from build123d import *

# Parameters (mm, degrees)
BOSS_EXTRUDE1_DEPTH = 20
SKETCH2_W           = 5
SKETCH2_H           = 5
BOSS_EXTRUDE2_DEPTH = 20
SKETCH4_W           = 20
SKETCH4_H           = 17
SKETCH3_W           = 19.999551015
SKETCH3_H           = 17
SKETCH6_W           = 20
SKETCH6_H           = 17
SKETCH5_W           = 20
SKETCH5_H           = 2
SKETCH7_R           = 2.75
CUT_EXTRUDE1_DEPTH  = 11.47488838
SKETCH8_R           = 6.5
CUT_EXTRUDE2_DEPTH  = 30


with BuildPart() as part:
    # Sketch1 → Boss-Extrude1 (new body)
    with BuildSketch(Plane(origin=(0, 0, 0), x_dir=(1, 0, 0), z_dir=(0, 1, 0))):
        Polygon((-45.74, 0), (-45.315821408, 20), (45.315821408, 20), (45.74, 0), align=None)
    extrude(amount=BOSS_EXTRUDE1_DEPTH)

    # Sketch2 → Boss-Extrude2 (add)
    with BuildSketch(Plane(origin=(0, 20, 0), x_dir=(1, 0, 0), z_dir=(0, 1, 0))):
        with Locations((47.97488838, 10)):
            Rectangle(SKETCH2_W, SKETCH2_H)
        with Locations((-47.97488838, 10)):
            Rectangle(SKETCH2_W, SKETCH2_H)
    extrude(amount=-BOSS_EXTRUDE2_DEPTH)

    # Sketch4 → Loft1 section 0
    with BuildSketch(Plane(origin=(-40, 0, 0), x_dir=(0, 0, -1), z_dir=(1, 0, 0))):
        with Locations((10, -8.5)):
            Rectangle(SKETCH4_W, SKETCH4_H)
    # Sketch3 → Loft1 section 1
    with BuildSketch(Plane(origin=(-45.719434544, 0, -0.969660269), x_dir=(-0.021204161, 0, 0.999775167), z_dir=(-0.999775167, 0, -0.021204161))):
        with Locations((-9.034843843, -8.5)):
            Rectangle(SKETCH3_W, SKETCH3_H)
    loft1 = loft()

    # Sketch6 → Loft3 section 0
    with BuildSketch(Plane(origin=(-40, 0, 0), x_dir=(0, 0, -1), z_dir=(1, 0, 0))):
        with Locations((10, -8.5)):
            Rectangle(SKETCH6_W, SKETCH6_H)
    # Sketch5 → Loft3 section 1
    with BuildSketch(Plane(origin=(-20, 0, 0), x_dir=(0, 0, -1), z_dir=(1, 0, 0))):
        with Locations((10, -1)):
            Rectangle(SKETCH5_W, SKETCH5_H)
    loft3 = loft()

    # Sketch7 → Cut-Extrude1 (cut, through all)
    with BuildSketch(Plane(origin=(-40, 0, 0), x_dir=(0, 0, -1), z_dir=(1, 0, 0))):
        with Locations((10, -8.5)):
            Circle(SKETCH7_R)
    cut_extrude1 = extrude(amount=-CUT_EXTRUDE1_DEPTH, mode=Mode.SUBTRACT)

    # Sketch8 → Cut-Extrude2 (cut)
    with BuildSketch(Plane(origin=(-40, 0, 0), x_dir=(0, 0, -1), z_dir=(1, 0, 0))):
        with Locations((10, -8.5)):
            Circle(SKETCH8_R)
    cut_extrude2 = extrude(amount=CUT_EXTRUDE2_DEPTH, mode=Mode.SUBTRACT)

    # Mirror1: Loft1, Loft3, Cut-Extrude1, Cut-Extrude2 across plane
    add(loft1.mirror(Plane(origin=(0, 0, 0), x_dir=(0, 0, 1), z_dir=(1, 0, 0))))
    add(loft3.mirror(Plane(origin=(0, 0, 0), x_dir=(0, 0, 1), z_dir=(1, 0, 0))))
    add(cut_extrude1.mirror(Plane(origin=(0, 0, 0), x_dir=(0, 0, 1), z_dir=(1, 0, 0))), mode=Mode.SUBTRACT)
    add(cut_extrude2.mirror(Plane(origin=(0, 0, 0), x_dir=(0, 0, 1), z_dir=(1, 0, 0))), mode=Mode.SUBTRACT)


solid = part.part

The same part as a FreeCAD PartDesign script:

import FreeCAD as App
import Part
import Sketcher

V = App.Vector
Q = App.Units.Quantity


def add_polygon(sketch, points):
    """Adds a closed chain of lines whose ends are joined by coincident constraints."""
    first, n = sketch.GeometryCount, len(points)
    for a, b in zip(points, points[1:] + points[:1]):
        sketch.addGeometry(Part.LineSegment(App.Vector(*a, 0), App.Vector(*b, 0)), False)
    for i in range(n):
        sketch.addConstraint(Sketcher.Constraint("Coincident", first + i, 2, first + (i + 1) % n, 1))

doc = App.newDocument("Part")
body = doc.addObject("PartDesign::Body", "Body")

# Sketch on XZ plane
sketch1 = body.newObject("Sketcher::SketchObject", "Sketch")
sketch1.AttachmentSupport = (doc.getObject("XZ_Plane"), [""])
sketch1.MapMode = "FlatFace"
add_polygon(sketch1, [(-45, -20), (-46, 0), (46, 0), (45, -20)])  # lines 0-3
sketch1.addConstraint([
    Sketcher.Constraint("Horizontal", 1),
    Sketcher.Constraint("Horizontal", 3),
    Sketcher.Constraint("Symmetric", 0, 2, 1, 2, -1, 1),
    Sketcher.Constraint("Equal", 0, 2),
    Sketcher.Constraint("DistanceY", 2, 2, -1, 1, Q("20 mm")),
    Sketcher.Constraint("DistanceX", 1, 1, 1, 2, Q("91.48 mm")),
    Sketcher.Constraint("DistanceX", 3, 2, 3, 1, Q("90.631643 mm")),
])
pad1 = body.newObject("PartDesign::Pad", "Pad")
pad1.Profile = sketch1
pad1.Length = 20
pad1.Reversed = True

# Sketch on XZ plane
sketch2 = body.newObject("Sketcher::SketchObject", "Sketch001")
sketch2.AttachmentSupport = (doc.getObject("XZ_Plane"), [""])
sketch2.MapMode = "FlatFace"
sketch2.AttachmentOffset = App.Placement(V(0, 0, -20), App.Rotation())
add_polygon(sketch2, [(45, -12), (45, -8), (50, -8), (50, -12)])  # lines 0-3
add_polygon(sketch2, [(-50, -12), (-50, -8), (-45, -8), (-45, -12)])  # lines 4-7
sketch2.addConstraint([
    Sketcher.Constraint("Vertical", 0),
    Sketcher.Constraint("Horizontal", 1),
    Sketcher.Constraint("Vertical", 2),
    Sketcher.Constraint("Horizontal", 3),
    Sketcher.Constraint("Vertical", 4),
    Sketcher.Constraint("Horizontal", 5),
    Sketcher.Constraint("Vertical", 6),
    Sketcher.Constraint("Horizontal", 7),
    Sketcher.Constraint("Symmetric", 1, 2, 4, 2, -2),
    Sketcher.Constraint("Symmetric", 3, 2, 6, 2, -2),
    Sketcher.Constraint("Equal", 7, 0),
    Sketcher.Constraint("DistanceX", 1, 1, 1, 2, Q("5 mm")),
    Sketcher.Constraint("DistanceY", 0, 2, -1, 1, Q("7.5 mm")),
    Sketcher.Constraint("DistanceX", -1, 1, 0, 2, Q("45.474888 mm")),
])
pad2 = body.newObject("PartDesign::Pad", "Pad001")
pad2.Profile = sketch2
pad2.Length = 20

# Sketch on YZ plane
sketch3 = body.newObject("Sketcher::SketchObject", "Sketch002")
sketch3.AttachmentSupport = (doc.getObject("YZ_Plane"), [""])
sketch3.MapMode = "FlatFace"
sketch3.AttachmentOffset = App.Placement(V(0, 0, -40), App.Rotation())
add_polygon(sketch3, [(0, 0), (-17, 0), (-17, -20), (0, -20)])  # lines 0-3
sketch3.addConstraint([
    Sketcher.Constraint("Horizontal", 0),
    Sketcher.Constraint("Vertical", 1),
    Sketcher.Constraint("Horizontal", 2),
    Sketcher.Constraint("Vertical", 3),
    Sketcher.Constraint("Coincident", 3, 2, -1, 1),
    Sketcher.Constraint("DistanceX", 0, 2, 0, 1, Q("17 mm")),
    Sketcher.Constraint("DistanceY", 1, 2, 1, 1, Q("20 mm")),
])

# Sketch on an angled plane
sketch4 = body.newObject("Sketcher::SketchObject", "Sketch003")
sketch4.Placement = App.Placement(V(-45.719435, 0, -0.96966), App.Rotation(V(-0.021204161, 0, 0.999775167), V(0, 1.000000001, 0), V(-0.999775167, 0, -0.021204161), "ZXY"))
add_polygon(sketch4, [(-19, 0), (-19, -17), (1, -17), (1, 0)])  # lines 0-3
sketch4.addConstraint([
    Sketcher.Constraint("Vertical", 0),
    Sketcher.Constraint("Horizontal", 1),
    Sketcher.Constraint("Vertical", 2),
    Sketcher.Constraint("Horizontal", 3),
    Sketcher.Constraint("PointOnObject", 2, 2, -1),
    Sketcher.Constraint("DistanceY", 0, 2, 0, 1, Q("17 mm")),
    Sketcher.Constraint("DistanceX", 1, 1, 1, 2, Q("19.999551 mm")),
    Sketcher.Constraint("DistanceX", 0, 2, -1, 1, Q("19.034619 mm")),
])

additiveloft = body.newObject("PartDesign::AdditiveLoft", "AdditiveLoft")
additiveloft.Profile = sketch3
additiveloft.Sections = [sketch4]

# Sketch on YZ plane
sketch5 = body.newObject("Sketcher::SketchObject", "Sketch004")
sketch5.AttachmentSupport = (doc.getObject("YZ_Plane"), [""])
sketch5.MapMode = "FlatFace"
sketch5.AttachmentOffset = App.Placement(V(0, 0, -40), App.Rotation())
add_polygon(sketch5, [(0, 0), (-17, 0), (-17, -20), (0, -20)])  # lines 0-3
sketch5.addConstraint([
    Sketcher.Constraint("Horizontal", 0),
    Sketcher.Constraint("Vertical", 1),
    Sketcher.Constraint("Horizontal", 2),
    Sketcher.Constraint("Vertical", 3),
    Sketcher.Constraint("Coincident", 3, 2, -1, 1),
    Sketcher.Constraint("DistanceX", 0, 2, 0, 1, Q("17 mm")),
    Sketcher.Constraint("DistanceY", 1, 2, 1, 1, Q("20 mm")),
])

# Sketch on YZ plane
sketch6 = body.newObject("Sketcher::SketchObject", "Sketch005")
sketch6.AttachmentSupport = (doc.getObject("YZ_Plane"), [""])
sketch6.MapMode = "FlatFace"
sketch6.AttachmentOffset = App.Placement(V(0, 0, -20), App.Rotation())
add_polygon(sketch6, [(0, 0), (-2, 0), (-2, -20), (0, -20)])  # lines 0-3
sketch6.addConstraint([
    Sketcher.Constraint("Horizontal", 0),
    Sketcher.Constraint("Vertical", 1),
    Sketcher.Constraint("Horizontal", 2),
    Sketcher.Constraint("Vertical", 3),
    Sketcher.Constraint("Coincident", 3, 2, -1, 1),
    Sketcher.Constraint("DistanceX", 0, 2, 0, 1, Q("2 mm")),
    Sketcher.Constraint("DistanceY", 1, 2, 1, 1, Q("20 mm")),
])

additiveloft2 = body.newObject("PartDesign::AdditiveLoft", "AdditiveLoft001")
additiveloft2.Profile = sketch5
additiveloft2.Sections = [sketch6]

# Sketch on YZ plane
sketch7 = body.newObject("Sketcher::SketchObject", "Sketch006")
sketch7.AttachmentSupport = (doc.getObject("YZ_Plane"), [""])
sketch7.MapMode = "FlatFace"
sketch7.AttachmentOffset = App.Placement(V(0, 0, -40), App.Rotation())
sketch7.addGeometry(Part.Circle(V(-8.5, -10, 0), V(0, 0, 1), 2.8), False)
sketch7.addConstraint([
    Sketcher.Constraint("Diameter", 0, Q("5.5 mm")),
    Sketcher.Constraint("DistanceY", 0, 3, -1, 1, Q("10 mm")),
    Sketcher.Constraint("DistanceX", 0, 3, -1, 1, Q("8.5 mm")),
])
pocket1 = body.newObject("PartDesign::Pocket", "Pocket")
pocket1.Profile = sketch7
pocket1.Type = "ThroughAll"

# Sketch on YZ plane
sketch8 = body.newObject("Sketcher::SketchObject", "Sketch007")
sketch8.AttachmentSupport = (doc.getObject("YZ_Plane"), [""])
sketch8.MapMode = "FlatFace"
sketch8.AttachmentOffset = App.Placement(V(0, 0, -40), App.Rotation())
sketch8.addGeometry(Part.Circle(V(-8, -10, 0), V(0, 0, 1), 6), False)
sketch8.addConstraint([
    Sketcher.Constraint("Diameter", 0, Q("13 mm")),
    Sketcher.Constraint("DistanceY", 0, 3, -1, 1, Q("10 mm")),
    Sketcher.Constraint("DistanceX", 0, 3, -1, 1, Q("8.5 mm")),
])
pocket2 = body.newObject("PartDesign::Pocket", "Pocket001")
pocket2.Profile = sketch8
pocket2.Length = 30
pocket2.Reversed = True
doc.recompute()

mirrored = body.newObject("PartDesign::Mirrored", "Mirrored")
mirrored.Originals = [additiveloft, additiveloft2, pocket1, pocket2]
mirrored.MirrorPlane = (doc.getObject("YZ_Plane"), [""])
body.Tip = mirrored

doc.recompute()
